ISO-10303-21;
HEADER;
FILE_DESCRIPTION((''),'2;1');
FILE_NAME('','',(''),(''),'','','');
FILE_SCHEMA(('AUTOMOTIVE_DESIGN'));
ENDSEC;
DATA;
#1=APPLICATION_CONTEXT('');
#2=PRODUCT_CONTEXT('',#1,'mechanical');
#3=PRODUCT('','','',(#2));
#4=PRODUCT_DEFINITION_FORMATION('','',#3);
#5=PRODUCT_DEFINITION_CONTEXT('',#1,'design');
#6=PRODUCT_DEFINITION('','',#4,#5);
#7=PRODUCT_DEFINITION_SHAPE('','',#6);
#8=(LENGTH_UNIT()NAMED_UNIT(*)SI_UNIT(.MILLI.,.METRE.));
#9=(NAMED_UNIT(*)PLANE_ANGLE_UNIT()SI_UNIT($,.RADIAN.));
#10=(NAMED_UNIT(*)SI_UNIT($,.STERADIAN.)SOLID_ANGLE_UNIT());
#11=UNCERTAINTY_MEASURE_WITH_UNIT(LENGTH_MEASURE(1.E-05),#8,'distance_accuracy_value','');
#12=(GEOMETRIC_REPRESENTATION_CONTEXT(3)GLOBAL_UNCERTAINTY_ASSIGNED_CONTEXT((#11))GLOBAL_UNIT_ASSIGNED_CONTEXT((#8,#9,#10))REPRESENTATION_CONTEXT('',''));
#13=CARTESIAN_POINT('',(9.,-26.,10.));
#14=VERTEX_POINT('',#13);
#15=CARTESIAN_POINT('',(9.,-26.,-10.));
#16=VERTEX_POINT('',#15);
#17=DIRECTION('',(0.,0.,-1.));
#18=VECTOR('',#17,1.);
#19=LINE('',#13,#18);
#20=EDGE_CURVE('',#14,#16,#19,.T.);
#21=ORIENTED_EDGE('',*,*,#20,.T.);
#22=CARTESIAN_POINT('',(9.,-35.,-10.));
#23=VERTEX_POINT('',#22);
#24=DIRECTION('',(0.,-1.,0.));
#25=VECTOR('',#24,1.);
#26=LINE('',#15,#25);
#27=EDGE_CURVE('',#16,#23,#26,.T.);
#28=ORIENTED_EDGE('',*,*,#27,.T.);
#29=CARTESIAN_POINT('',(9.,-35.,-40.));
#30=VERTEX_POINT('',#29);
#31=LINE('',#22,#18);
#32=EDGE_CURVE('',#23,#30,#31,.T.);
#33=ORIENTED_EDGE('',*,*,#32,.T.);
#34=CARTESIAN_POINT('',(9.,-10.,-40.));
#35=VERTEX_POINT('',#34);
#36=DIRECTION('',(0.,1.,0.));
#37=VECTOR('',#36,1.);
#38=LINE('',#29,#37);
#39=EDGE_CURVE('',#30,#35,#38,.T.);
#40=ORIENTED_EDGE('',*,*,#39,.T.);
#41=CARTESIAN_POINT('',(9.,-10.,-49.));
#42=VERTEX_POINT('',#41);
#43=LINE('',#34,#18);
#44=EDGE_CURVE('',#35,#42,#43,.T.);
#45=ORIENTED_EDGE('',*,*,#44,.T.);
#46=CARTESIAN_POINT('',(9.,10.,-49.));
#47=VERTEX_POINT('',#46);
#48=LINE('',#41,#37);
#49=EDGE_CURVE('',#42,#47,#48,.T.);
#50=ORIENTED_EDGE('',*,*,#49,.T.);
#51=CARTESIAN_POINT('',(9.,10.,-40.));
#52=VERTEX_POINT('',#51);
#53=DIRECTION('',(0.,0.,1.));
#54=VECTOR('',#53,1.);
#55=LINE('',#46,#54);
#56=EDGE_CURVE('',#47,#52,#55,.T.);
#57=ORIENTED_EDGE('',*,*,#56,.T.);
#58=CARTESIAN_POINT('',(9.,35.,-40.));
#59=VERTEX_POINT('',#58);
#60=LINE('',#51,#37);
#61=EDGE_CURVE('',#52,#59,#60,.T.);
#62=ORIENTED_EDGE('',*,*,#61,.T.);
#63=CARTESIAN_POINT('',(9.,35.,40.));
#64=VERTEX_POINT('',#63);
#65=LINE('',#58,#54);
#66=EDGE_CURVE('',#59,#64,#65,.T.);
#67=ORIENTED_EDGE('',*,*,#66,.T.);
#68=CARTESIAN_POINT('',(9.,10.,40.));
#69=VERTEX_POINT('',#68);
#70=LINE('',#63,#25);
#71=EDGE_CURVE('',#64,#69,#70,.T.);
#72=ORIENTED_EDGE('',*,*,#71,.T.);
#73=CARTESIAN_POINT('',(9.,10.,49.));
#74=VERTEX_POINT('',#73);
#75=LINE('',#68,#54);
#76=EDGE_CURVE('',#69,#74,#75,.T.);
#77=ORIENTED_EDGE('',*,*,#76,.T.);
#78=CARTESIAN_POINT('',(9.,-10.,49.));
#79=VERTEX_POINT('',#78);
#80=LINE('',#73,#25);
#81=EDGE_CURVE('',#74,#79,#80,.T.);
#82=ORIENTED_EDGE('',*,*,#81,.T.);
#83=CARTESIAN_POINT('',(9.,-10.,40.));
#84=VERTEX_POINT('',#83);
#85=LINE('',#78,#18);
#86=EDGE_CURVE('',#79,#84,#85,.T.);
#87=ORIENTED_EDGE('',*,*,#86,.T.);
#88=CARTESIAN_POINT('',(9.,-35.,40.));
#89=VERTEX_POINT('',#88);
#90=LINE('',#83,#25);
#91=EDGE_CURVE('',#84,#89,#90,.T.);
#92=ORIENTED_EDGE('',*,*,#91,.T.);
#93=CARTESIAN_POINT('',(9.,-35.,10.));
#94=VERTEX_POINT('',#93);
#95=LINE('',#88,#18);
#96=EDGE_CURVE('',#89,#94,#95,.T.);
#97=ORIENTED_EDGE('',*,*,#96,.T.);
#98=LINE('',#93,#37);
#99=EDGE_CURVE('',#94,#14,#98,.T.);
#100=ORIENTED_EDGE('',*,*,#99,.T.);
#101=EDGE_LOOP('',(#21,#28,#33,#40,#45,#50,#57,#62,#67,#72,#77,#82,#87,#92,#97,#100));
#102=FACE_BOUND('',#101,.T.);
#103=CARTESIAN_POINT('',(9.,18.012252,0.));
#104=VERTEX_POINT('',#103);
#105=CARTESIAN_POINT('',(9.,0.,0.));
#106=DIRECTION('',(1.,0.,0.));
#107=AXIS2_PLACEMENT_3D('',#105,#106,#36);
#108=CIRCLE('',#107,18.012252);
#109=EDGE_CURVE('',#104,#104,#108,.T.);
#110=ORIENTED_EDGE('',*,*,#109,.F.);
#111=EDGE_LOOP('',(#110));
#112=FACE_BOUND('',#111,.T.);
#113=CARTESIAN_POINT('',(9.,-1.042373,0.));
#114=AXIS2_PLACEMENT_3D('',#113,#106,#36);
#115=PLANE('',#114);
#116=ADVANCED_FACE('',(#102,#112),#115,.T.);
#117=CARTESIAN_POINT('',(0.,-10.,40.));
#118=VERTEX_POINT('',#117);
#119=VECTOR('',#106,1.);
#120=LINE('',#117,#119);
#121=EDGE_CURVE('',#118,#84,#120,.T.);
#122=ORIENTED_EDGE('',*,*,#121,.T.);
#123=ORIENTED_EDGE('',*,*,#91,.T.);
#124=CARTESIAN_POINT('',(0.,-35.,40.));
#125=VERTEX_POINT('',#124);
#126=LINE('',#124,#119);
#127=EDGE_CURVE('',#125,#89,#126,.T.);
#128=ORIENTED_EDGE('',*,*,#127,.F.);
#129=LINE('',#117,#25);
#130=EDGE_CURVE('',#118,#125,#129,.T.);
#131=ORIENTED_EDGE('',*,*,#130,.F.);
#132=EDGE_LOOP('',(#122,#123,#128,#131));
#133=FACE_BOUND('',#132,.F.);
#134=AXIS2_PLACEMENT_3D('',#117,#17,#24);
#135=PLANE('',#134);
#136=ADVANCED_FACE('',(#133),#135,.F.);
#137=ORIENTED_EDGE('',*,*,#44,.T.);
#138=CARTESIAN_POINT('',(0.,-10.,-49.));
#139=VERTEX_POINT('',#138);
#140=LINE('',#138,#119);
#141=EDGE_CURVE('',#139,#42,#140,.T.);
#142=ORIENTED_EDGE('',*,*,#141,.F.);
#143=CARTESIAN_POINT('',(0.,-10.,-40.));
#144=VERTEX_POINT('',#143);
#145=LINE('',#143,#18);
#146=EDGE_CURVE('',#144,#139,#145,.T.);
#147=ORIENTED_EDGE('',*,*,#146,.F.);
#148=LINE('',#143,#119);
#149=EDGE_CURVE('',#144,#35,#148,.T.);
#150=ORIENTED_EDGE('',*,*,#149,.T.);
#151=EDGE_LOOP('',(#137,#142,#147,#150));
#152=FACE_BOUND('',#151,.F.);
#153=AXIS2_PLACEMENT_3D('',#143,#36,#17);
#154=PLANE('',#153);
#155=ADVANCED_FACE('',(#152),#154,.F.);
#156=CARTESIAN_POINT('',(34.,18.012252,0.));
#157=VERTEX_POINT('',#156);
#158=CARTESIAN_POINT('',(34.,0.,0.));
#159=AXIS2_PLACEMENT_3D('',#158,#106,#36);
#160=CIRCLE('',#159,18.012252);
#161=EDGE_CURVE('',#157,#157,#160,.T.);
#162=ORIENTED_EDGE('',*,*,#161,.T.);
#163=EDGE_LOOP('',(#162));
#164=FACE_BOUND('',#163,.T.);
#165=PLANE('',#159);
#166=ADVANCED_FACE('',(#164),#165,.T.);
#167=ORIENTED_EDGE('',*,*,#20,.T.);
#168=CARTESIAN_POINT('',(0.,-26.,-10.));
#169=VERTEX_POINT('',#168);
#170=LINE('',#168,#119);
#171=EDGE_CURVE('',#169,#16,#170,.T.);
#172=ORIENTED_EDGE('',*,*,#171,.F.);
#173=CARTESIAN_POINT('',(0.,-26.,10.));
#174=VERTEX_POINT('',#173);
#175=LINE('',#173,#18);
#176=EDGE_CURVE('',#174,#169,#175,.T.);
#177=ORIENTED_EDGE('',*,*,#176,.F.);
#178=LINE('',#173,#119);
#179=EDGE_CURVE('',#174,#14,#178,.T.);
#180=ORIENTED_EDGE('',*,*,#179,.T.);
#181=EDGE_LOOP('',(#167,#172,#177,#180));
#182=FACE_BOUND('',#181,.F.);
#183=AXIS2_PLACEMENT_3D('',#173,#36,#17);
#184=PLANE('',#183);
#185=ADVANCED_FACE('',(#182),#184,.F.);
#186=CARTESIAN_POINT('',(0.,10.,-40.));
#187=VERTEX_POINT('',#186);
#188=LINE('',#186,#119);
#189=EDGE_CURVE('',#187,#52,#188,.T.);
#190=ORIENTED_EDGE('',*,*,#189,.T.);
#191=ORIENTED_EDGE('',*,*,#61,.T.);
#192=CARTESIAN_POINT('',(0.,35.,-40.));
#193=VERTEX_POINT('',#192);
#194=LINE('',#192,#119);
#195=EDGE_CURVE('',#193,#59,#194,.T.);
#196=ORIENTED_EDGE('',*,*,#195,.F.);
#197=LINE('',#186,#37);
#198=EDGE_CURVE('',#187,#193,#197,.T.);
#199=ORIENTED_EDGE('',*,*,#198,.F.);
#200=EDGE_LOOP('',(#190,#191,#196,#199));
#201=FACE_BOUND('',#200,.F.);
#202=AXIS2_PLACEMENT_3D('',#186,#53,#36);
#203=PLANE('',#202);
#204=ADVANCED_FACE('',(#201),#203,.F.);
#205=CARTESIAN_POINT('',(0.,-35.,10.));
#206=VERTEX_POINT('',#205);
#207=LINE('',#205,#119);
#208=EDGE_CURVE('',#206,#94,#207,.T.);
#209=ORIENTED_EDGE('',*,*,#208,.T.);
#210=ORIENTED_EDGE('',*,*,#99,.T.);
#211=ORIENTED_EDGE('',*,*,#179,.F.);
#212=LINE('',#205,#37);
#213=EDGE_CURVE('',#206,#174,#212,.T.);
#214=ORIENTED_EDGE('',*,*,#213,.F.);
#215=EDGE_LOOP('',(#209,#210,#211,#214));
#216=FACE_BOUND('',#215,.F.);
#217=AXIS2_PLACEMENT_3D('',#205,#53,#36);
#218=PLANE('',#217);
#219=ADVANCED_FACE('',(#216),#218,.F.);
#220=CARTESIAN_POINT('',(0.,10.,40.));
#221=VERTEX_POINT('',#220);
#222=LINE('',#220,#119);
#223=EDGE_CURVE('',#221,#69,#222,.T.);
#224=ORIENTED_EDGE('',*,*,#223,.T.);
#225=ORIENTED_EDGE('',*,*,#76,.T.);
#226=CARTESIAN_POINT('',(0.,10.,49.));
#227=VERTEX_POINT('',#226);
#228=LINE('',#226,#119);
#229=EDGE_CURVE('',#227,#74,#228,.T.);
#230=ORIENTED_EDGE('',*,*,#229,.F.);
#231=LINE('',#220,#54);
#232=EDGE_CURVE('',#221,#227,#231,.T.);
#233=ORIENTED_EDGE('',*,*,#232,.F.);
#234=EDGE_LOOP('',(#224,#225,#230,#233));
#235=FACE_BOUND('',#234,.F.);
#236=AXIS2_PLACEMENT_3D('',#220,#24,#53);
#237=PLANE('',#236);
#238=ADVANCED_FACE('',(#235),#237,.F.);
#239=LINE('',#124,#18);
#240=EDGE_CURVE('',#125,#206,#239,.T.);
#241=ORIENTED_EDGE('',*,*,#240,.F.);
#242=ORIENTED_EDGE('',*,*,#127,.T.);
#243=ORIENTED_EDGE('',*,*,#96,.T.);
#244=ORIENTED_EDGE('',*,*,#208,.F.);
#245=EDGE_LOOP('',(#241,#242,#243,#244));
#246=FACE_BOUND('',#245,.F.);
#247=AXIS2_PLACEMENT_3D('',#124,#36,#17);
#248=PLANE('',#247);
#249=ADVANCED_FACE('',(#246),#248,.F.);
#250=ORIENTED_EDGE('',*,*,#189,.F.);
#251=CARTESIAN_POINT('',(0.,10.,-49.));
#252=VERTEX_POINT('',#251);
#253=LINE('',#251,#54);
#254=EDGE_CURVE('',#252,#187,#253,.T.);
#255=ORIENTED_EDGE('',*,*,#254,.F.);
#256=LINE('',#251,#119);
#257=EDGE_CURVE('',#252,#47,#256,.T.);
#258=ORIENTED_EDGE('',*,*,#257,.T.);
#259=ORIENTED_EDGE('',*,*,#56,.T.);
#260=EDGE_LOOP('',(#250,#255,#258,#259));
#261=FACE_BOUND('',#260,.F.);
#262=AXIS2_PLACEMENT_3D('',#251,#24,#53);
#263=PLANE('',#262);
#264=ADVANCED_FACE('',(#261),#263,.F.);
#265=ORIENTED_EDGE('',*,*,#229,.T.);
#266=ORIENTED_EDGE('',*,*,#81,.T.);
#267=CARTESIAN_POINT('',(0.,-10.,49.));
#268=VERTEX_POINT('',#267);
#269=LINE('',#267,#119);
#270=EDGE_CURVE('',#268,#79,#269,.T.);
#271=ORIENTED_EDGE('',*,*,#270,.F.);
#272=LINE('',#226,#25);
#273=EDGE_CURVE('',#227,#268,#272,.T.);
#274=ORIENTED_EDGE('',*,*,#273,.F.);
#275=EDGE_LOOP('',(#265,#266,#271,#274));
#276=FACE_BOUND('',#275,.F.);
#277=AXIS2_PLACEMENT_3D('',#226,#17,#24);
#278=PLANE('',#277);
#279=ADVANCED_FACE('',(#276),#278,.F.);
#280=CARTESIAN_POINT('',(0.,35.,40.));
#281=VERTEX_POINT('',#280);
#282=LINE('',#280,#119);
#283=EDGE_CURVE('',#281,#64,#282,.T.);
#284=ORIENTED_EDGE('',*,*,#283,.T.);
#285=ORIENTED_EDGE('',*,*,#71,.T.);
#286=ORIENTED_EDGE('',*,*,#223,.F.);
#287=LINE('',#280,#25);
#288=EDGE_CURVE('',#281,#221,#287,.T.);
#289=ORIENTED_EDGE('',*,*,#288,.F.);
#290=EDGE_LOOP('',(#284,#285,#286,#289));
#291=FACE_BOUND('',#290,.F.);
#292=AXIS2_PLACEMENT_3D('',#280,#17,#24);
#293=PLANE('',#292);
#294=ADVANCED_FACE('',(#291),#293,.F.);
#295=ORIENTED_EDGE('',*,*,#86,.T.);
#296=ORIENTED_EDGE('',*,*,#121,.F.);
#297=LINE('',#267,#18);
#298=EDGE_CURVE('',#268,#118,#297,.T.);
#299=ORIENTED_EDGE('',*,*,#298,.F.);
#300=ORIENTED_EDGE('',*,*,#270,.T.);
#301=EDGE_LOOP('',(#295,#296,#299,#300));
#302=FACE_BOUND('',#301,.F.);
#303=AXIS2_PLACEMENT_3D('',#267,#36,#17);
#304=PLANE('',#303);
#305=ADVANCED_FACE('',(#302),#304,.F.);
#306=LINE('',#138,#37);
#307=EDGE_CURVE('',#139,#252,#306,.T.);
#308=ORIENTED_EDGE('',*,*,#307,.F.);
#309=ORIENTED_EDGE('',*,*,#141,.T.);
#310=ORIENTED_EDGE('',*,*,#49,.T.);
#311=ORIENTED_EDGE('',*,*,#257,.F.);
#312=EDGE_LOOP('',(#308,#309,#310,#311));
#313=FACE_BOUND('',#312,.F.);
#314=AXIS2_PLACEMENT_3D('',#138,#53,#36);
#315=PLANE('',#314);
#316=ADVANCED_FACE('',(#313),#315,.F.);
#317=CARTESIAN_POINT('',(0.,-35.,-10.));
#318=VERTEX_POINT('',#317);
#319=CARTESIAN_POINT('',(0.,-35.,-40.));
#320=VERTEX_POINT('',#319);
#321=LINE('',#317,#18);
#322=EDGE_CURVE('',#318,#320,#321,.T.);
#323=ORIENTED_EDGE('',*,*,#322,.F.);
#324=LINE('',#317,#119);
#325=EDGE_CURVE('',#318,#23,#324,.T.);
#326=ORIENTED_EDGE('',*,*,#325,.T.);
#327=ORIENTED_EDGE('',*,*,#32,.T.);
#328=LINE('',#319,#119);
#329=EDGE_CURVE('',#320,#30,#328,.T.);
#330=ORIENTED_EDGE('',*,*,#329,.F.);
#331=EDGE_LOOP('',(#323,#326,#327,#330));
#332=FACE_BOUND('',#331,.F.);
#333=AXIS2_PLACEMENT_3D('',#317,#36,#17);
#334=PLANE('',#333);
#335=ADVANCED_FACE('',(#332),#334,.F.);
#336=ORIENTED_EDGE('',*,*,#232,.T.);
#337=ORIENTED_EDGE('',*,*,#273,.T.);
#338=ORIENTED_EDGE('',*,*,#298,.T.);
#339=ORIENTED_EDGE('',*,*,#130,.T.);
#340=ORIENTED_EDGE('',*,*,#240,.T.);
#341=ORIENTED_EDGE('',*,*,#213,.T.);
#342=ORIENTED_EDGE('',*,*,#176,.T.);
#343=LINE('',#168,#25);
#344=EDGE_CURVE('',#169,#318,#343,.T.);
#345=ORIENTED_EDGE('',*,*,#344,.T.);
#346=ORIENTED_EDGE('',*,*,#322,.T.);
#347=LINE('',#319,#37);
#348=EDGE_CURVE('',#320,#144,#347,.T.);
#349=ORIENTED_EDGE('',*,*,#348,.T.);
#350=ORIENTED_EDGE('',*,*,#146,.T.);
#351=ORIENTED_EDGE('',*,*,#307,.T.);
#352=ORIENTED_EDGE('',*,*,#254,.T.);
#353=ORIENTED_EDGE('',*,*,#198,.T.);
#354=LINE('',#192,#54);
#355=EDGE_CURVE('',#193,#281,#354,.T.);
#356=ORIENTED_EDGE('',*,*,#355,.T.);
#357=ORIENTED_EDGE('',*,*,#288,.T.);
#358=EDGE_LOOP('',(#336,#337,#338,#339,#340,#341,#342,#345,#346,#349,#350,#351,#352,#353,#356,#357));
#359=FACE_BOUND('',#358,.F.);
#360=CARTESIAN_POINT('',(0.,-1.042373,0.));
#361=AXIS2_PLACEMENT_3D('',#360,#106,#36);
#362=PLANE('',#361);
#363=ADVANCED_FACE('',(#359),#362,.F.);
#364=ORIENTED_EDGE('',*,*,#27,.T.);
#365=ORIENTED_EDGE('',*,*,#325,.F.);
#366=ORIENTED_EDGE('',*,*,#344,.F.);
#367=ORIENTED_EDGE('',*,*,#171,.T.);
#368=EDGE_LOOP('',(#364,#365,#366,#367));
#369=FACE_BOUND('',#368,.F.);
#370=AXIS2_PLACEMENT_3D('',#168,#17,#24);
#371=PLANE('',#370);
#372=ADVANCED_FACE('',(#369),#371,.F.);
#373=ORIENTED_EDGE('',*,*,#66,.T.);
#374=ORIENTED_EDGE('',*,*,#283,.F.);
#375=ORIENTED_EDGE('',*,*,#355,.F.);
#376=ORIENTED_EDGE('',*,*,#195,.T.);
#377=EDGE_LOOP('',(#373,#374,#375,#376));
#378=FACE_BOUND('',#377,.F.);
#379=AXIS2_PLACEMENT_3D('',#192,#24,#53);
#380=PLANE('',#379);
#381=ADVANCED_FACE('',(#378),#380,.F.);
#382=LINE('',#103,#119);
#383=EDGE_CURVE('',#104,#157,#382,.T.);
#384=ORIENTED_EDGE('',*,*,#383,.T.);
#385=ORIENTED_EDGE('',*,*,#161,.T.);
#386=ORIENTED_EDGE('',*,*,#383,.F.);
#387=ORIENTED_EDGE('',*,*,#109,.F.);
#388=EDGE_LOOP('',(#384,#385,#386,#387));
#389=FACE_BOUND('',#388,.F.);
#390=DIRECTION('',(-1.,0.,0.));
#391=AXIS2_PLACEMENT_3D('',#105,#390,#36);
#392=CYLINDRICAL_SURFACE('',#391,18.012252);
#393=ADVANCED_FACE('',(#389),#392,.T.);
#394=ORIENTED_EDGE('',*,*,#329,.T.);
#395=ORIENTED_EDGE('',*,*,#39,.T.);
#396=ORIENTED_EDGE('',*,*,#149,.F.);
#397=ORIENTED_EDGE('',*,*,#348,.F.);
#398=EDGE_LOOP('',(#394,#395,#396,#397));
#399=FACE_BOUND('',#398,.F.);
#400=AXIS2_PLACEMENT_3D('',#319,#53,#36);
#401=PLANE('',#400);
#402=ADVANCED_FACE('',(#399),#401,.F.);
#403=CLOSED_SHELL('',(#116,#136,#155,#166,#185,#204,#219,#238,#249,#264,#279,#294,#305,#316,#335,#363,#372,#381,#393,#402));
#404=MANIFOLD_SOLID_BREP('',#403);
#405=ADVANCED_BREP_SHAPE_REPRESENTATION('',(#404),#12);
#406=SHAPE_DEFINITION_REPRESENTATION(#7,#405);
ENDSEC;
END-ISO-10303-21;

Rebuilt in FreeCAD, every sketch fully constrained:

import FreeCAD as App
import Part
import Sketcher

V = App.Vector


def add_polygon(sketch, points):
    """Adds a closed chain of lines whose ends are joined by coincident constraints."""
    first, n = sketch.GeometryCount, len(points)
    for a, b in zip(points, points[1:] + points[:1]):
        sketch.addGeometry(Part.LineSegment(App.Vector(*a, 0), App.Vector(*b, 0)), False)
    for i in range(n):
        sketch.addConstraint(Sketcher.Constraint("Coincident", first + i, 2, first + (i + 1) % n, 1))

doc = App.newDocument("Part")
body = doc.addObject("PartDesign::Body", "Body")

sketch1 = body.newObject("Sketcher::SketchObject", "Sketch")
sketch1.AttachmentSupport = (doc.getObject("YZ_Plane"), [""])
sketch1.MapMode = "FlatFace"
add_polygon(sketch1, [(10, 40), (10, 49), (-10, 49), (-10, 40), (-35, 40), (-35, 10), (-26, 10), (-26, -10), (-35, -10), (-35, -40), (-10, -40), (-10, -49), (10, -49), (10, -40), (35, -40), (35, 40)])
sketch1.addConstraint(Sketcher.Constraint("Vertical", 0))
sketch1.addConstraint(Sketcher.Constraint("Horizontal", 1))
sketch1.addConstraint(Sketcher.Constraint("Vertical", 2))
sketch1.addConstraint(Sketcher.Constraint("Horizontal", 3))
sketch1.addConstraint(Sketcher.Constraint("Vertical", 4))
sketch1.addConstraint(Sketcher.Constraint("Horizontal", 5))
sketch1.addConstraint(Sketcher.Constraint("Vertical", 6))
sketch1.addConstraint(Sketcher.Constraint("Horizontal", 7))
sketch1.addConstraint(Sketcher.Constraint("Vertical", 8))
sketch1.addConstraint(Sketcher.Constraint("Horizontal", 9))
sketch1.addConstraint(Sketcher.Constraint("Vertical", 10))
sketch1.addConstraint(Sketcher.Constraint("Horizontal", 11))
sketch1.addConstraint(Sketcher.Constraint("Vertical", 12))
sketch1.addConstraint(Sketcher.Constraint("Horizontal", 13))
sketch1.addConstraint(Sketcher.Constraint("Vertical", 14))
sketch1.addConstraint(Sketcher.Constraint("Horizontal", 15))
sketch1.addConstraint(Sketcher.Constraint("Symmetric", 0, 2, 10, 2, -1, 1))
sketch1.addConstraint(Sketcher.Constraint("Symmetric", 2, 2, 12, 2, -1, 1))
sketch1.addConstraint(Sketcher.Constraint("Symmetric", 8, 2, 14, 2, -1, 1))
sketch1.addConstraint(Sketcher.Constraint("Symmetric", 9, 2, 12, 2, -2))
sketch1.addConstraint(Sketcher.Constraint("Symmetric", 4, 2, 7, 2, -1))
sketch1.addConstraint(Sketcher.Constraint("Equal", 7, 0))
sketch1.addConstraint(Sketcher.Constraint("Equal", 11, 6))
sketch1.addConstraint(Sketcher.Constraint("DistanceX", 1, 2, 1, 1, 20.0))
sketch1.addConstraint(Sketcher.Constraint("DistanceX", 3, 2, 3, 1, 25.0))
sketch1.addConstraint(Sketcher.Constraint("DistanceX", 5, 1, 5, 2, 9.0))
sketch1.addConstraint(Sketcher.Constraint("DistanceY", 4, 2, 4, 1, 30.0))
pad1 = body.newObject("PartDesign::Pad", "Pad")
pad1.Profile = sketch1
pad1.Length = 9

sketch2 = body.newObject("Sketcher::SketchObject", "Sketch001")
sketch2.AttachmentSupport = (doc.getObject("YZ_Plane"), [""])
sketch2.MapMode = "FlatFace"
sketch2.AttachmentOffset = App.Placement(V(0, 0, 9), App.Rotation())
sketch2.addGeometry(Part.Circle(V(0, 0, 0), V(0, 0, 1), 18.012252), False)
sketch2.addConstraint(Sketcher.Constraint("Coincident", 0, 3, -1, 1))
sketch2.addConstraint(Sketcher.Constraint("Diameter", 0, 36.024504))
pad2 = body.newObject("PartDesign::Pad", "Pad001")
pad2.Profile = sketch2
pad2.Length = 25

doc.recompute()
